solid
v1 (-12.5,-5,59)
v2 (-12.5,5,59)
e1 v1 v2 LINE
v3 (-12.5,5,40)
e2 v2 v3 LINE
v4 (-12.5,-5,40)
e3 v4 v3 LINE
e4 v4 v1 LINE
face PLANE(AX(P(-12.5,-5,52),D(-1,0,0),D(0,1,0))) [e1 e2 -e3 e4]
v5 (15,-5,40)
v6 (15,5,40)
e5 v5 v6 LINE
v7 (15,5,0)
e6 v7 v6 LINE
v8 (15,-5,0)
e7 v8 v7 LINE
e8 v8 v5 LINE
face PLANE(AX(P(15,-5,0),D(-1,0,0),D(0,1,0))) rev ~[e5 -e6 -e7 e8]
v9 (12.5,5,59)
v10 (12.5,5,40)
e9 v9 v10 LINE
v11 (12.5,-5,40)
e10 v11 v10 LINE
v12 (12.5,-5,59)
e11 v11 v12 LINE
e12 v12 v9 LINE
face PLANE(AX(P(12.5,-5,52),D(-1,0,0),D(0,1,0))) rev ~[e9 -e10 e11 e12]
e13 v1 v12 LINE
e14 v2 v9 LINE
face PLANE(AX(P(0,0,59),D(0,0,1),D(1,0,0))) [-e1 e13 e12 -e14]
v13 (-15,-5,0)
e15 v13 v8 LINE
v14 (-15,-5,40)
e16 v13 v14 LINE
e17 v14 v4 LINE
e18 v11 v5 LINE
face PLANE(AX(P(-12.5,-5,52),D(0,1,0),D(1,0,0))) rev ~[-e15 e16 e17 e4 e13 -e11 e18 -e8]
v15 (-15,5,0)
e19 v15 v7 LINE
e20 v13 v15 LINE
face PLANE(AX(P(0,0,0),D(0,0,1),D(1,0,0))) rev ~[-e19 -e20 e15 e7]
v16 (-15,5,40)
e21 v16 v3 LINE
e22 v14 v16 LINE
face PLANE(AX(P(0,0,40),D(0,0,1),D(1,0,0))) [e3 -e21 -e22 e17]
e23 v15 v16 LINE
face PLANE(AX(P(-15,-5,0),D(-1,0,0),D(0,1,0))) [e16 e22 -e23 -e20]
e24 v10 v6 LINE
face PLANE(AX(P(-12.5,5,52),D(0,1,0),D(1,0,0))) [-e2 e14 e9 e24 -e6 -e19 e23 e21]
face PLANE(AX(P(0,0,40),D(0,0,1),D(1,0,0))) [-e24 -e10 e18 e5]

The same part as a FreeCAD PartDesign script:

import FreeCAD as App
import Part
import Sketcher
from FreeCAD import Vector


def add_polygon(sketch, points):
    """Adds a closed chain of lines whose ends are joined by coincident constraints."""
    first, n = sketch.GeometryCount, len(points)
    for a, b in zip(points, points[1:] + points[:1]):
        sketch.addGeometry(Part.LineSegment(App.Vector(*a, 0), App.Vector(*b, 0)), False)
    for i in range(n):
        sketch.addConstraint(Sketcher.Constraint("Coincident", first + i, 2, first + (i + 1) % n, 1))

doc = App.newDocument("Part")
body = doc.addObject("PartDesign::Body", "Body")

# Sketch on XY plane
sketch1 = body.newObject("Sketcher::SketchObject", "Sketch")
sketch1.AttachmentSupport = (doc.getObject("XY_Plane"), [""])
sketch1.MapMode = "FlatFace"
add_polygon(sketch1, [(-15, 5), (-15, -5), (15, -5), (15, 5)])  # lines 0-3
sketch1.addConstraint([
    Sketcher.Constraint("Vertical", 0),
    Sketcher.Constraint("Horizontal", 1),
    Sketcher.Constraint("Vertical", 2),
    Sketcher.Constraint("Horizontal", 3),
    Sketcher.Constraint("Symmetric", 0, 2, 2, 2, -1, 1),
    Sketcher.Constraint("DistanceX", 1, 1, 1, 2, 30.0),
    Sketcher.Constraint("DistanceY", 0, 2, 0, 1, 10.0),
])
pad1 = body.newObject("PartDesign::Pad", "Pad")
pad1.Profile = sketch1
pad1.Length = 40

# Sketch on XY plane
sketch2 = body.newObject("Sketcher::SketchObject", "Sketch001")
sketch2.AttachmentSupport = (doc.getObject("XY_Plane"), [""])
sketch2.MapMode = "FlatFace"
sketch2.AttachmentOffset = App.Placement(Vector(0, 0, 40), App.Rotation())
add_polygon(sketch2, [(-12, 5), (-12, -5), (12, -5), (12, 5)])  # lines 0-3
sketch2.addConstraint([
    Sketcher.Constraint("Vertical", 0),
    Sketcher.Constraint("Horizontal", 1),
    Sketcher.Constraint("Vertical", 2),
    Sketcher.Constraint("Horizontal", 3),
    Sketcher.Constraint("Symmetric", 0, 2, 2, 2, -1, 1),
    Sketcher.Constraint("DistanceX", 1, 1, 1, 2, 25.0),
    Sketcher.Constraint("DistanceY", 0, 2, 0, 1, 10.0),
])
pad2 = body.newObject("PartDesign::Pad", "Pad001")
pad2.Profile = sketch2
pad2.Length = 12

# Sketch on XY plane
sketch3 = body.newObject("Sketcher::SketchObject", "Sketch002")
sketch3.AttachmentSupport = (doc.getObject("XY_Plane"), [""])
sketch3.MapMode = "FlatFace"
sketch3.AttachmentOffset = App.Placement(Vector(0, 0, 52), App.Rotation())
add_polygon(sketch3, [(-12, 5), (-12, -5), (12, -5), (12, 5)])  # lines 0-3
sketch3.addConstraint([
    Sketcher.Constraint("Vertical", 0),
    Sketcher.Constraint("Horizontal", 1),
    Sketcher.Constraint("Vertical", 2),
    Sketcher.Constraint("Horizontal", 3),
    Sketcher.Constraint("Symmetric", 0, 2, 2, 2, -1, 1),
    Sketcher.Constraint("DistanceX", 1, 1, 1, 2, 25.0),
    Sketcher.Constraint("DistanceY", 0, 2, 0, 1, 10.0),
])
pad3 = body.newObject("PartDesign::Pad", "Pad002")
pad3.Profile = sketch3
pad3.Length = 7

doc.recompute()
